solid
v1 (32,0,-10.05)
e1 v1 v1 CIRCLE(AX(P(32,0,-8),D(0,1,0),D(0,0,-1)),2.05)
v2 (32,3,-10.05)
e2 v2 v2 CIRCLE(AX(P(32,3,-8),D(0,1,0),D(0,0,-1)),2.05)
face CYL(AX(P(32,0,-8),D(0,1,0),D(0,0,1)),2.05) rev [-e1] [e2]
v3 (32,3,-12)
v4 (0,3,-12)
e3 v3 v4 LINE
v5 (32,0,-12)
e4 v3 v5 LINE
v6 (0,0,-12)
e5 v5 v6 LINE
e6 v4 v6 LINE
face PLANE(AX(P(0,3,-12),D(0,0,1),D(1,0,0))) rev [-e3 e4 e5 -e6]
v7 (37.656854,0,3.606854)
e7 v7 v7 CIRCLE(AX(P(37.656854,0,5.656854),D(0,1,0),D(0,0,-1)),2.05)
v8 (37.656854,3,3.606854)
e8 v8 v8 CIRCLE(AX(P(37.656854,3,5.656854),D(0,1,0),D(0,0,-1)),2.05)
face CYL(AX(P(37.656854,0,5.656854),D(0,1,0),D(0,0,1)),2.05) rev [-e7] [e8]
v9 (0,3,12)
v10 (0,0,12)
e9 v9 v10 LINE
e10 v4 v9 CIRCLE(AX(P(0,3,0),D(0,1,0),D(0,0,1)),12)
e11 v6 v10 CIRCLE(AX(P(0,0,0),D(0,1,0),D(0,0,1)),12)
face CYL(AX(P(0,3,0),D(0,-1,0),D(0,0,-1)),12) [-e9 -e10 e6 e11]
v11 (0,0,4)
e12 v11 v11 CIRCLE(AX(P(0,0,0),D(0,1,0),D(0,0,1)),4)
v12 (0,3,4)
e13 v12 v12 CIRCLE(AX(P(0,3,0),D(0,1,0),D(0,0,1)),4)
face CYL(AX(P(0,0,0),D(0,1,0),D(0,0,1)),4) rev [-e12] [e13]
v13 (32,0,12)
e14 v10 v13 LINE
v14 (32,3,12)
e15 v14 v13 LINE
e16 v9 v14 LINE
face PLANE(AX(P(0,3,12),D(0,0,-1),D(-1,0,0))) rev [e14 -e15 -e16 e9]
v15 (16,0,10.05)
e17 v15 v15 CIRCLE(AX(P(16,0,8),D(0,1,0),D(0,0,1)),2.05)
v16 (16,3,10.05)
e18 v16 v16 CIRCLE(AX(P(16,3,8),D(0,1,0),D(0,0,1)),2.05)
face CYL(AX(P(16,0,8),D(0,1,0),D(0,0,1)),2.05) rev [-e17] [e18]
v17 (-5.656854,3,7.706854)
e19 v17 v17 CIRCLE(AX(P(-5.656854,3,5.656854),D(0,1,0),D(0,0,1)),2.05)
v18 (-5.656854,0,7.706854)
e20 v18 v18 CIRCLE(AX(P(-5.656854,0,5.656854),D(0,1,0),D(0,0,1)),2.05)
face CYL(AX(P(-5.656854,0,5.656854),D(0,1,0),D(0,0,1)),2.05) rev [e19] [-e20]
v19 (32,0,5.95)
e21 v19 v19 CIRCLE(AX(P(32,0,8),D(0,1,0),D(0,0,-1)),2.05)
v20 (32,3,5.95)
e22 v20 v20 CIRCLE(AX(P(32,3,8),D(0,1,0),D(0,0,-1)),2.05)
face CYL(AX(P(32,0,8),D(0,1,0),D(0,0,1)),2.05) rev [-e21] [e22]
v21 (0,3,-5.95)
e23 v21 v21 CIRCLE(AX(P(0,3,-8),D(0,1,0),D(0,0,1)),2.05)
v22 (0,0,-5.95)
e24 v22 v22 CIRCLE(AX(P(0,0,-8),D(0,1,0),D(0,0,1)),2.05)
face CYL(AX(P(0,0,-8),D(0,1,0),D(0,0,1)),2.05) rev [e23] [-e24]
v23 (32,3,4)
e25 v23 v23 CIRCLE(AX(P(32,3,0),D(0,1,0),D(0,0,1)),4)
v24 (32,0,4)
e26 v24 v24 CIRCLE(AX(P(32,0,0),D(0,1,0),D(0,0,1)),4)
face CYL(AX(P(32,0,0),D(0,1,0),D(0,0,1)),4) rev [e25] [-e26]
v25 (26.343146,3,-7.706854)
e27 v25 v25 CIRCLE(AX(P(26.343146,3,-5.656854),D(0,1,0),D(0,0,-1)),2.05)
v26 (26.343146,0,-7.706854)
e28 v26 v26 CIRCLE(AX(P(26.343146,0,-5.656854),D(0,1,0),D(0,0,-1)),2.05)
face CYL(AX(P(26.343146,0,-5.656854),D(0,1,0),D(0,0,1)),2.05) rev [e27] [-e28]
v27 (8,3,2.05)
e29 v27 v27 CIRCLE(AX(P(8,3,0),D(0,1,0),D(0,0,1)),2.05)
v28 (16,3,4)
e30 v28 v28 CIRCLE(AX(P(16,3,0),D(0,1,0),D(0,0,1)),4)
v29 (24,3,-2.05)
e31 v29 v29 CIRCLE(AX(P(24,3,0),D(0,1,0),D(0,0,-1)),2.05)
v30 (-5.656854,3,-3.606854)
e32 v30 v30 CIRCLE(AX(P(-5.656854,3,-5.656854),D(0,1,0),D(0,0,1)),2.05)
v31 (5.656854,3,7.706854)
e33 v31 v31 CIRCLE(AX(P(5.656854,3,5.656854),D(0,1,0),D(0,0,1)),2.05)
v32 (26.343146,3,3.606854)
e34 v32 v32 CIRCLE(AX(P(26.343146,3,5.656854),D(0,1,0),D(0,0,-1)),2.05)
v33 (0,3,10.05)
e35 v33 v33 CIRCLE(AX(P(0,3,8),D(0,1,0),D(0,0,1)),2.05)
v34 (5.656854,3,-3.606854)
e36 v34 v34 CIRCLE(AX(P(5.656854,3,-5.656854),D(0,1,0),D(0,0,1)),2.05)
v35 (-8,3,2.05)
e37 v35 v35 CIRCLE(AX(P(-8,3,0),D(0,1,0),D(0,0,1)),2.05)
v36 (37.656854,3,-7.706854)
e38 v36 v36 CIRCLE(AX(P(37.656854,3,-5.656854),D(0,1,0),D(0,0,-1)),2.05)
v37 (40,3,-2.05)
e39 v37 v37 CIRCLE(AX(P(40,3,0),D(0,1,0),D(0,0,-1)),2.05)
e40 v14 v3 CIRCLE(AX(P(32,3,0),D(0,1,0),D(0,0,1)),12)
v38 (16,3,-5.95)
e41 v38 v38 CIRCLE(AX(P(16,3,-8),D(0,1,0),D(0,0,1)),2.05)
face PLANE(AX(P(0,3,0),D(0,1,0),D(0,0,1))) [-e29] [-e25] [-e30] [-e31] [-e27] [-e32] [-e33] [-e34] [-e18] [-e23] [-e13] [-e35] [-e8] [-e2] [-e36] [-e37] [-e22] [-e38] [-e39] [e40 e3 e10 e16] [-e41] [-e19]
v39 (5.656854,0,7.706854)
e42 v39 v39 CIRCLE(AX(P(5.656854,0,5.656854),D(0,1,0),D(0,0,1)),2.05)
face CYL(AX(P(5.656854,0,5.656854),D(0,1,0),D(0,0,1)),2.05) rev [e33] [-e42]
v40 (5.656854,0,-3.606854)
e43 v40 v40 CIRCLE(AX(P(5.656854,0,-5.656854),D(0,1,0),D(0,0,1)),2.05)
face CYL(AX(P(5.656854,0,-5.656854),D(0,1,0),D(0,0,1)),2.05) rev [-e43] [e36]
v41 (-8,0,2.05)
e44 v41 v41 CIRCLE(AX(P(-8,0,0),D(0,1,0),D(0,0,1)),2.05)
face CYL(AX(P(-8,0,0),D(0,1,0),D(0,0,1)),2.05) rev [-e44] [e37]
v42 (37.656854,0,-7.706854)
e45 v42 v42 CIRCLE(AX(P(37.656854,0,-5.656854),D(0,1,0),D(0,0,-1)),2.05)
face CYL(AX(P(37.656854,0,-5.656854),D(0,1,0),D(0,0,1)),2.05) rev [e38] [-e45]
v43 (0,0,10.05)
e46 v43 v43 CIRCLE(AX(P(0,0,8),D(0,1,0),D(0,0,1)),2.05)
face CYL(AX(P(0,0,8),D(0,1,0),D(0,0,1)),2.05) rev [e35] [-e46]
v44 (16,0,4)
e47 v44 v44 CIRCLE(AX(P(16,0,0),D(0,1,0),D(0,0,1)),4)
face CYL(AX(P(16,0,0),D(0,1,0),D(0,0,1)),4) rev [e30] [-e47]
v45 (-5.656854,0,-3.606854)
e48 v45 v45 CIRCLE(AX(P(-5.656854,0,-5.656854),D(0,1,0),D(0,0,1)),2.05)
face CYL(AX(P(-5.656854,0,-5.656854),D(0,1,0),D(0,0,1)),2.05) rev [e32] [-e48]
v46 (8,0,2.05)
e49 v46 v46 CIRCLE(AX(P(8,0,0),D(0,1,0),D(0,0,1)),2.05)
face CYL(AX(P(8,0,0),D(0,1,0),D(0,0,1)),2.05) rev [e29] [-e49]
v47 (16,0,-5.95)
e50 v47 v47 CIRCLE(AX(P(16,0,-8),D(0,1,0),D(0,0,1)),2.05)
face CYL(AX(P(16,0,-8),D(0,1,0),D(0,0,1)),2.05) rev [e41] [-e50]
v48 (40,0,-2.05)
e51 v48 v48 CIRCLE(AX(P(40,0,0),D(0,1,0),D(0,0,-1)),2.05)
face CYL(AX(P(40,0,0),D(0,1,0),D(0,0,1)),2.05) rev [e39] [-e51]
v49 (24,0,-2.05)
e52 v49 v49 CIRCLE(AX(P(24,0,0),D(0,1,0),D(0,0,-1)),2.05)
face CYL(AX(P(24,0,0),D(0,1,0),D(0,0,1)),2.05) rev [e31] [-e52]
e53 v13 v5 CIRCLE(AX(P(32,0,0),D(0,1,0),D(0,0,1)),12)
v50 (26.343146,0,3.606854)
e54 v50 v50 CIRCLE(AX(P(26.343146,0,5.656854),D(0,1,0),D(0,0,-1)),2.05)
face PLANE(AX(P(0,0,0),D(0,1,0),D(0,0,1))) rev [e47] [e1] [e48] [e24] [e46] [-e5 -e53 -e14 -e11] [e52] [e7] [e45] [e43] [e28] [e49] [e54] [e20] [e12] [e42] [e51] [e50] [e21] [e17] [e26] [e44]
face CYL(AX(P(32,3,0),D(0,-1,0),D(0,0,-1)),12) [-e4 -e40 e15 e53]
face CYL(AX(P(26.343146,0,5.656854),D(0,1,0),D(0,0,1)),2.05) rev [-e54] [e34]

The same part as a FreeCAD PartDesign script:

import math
import FreeCAD as App
import Part
import Sketcher

doc = App.newDocument("Part")
body = doc.addObject("PartDesign::Body", "Body")

# Sketch on XZ plane
sketch1 = body.newObject("Sketcher::SketchObject", "Sketch")
sketch1.AttachmentSupport = (doc.getObject("XZ_Plane"), [""])
sketch1.MapMode = "FlatFace"
sketch1.addGeometry([
    Part.LineSegment(App.Vector(32, -12, 0), App.Vector(0, -12, 0)),
    Part.ArcOfCircle(Part.Circle(App.Vector(0, 0, 0), App.Vector(0, 0, 1), 12), math.radians(90), math.radians(270)),
    Part.LineSegment(App.Vector(0, 12, 0), App.Vector(32, 12, 0)),
    Part.ArcOfCircle(Part.Circle(App.Vector(32, 0, 0), App.Vector(0, 0, 1), 12), math.radians(-90), math.radians(90)),
], False)
sketch1.addConstraint([
    Sketcher.Constraint("Tangent", 0, 2, 1, 2),
    Sketcher.Constraint("Tangent", 1, 1, 2, 1),
    Sketcher.Constraint("Tangent", 2, 2, 3, 2),
    Sketcher.Constraint("Tangent", 3, 1, 0, 1),
    Sketcher.Constraint("Horizontal", 0),
    Sketcher.Constraint("Horizontal", 2),
    Sketcher.Constraint("Coincident", 1, 3, -1, 1),
    Sketcher.Constraint("Radius", 1, 12.0),
    Sketcher.Constraint("DistanceX", 0, 2, 0, 1, 32.0),
])
pad1 = body.newObject("PartDesign::Pad", "Pad")
pad1.Profile = sketch1
pad1.Length = 3
pad1.Reversed = True

# Sketch on XZ plane
sketch2 = body.newObject("Sketcher::SketchObject", "Sketch001")
sketch2.AttachmentSupport = (doc.getObject("XZ_Plane"), [""])
sketch2.MapMode = "FlatFace"
sketch2.AttachmentOffset = App.Placement(App.Vector(0, 0, -3), App.Rotation())
sketch2.addGeometry([
    Part.Circle(App.Vector(0, 0, 0), App.Vector(0, 0, 1), 4),
    Part.Circle(App.Vector(16, 0, 0), App.Vector(0, 0, 1), 4),
    Part.Circle(App.Vector(32, 0, 0), App.Vector(0, 0, 1), 4),
], False)
sketch2.addConstraint([
    Sketcher.Constraint("Coincident", 0, 3, -1, 1),
    Sketcher.Constraint("Equal", 0, 1),
    Sketcher.Constraint("Equal", 1, 2),
    Sketcher.Constraint("PointOnObject", 1, 3, -1),
    Sketcher.Constraint("PointOnObject", 2, 3, -1),
    Sketcher.Constraint("Diameter", 0, 8.0),
    Sketcher.Constraint("DistanceX", -1, 1, 1, 3, 16.0),
    Sketcher.Constraint("DistanceX", -1, 1, 2, 3, 32.0),
])
pocket1 = body.newObject("PartDesign::Pocket", "Pocket")
pocket1.Profile = sketch2
pocket1.Type = "ThroughAll"
pocket1.Reversed = True

# Sketch on XZ plane
sketch3 = body.newObject("Sketcher::SketchObject", "Sketch002")
sketch3.AttachmentSupport = (doc.getObject("XZ_Plane"), [""])
sketch3.MapMode = "FlatFace"
sketch3.AttachmentOffset = App.Placement(App.Vector(0, 0, -3), App.Rotation())
sketch3.addGeometry([
    Part.Circle(App.Vector(0, -8, 0), App.Vector(0, 0, 1), 2),  # 0
    Part.Circle(App.Vector(5.7, -5.7, 0), App.Vector(0, 0, 1), 2),  # 1
    Part.Circle(App.Vector(8, 0, 0), App.Vector(0, 0, 1), 2),  # 2
    Part.Circle(App.Vector(5.7, 5.7, 0), App.Vector(0, 0, 1), 2),  # 3
    Part.Circle(App.Vector(0, 8, 0), App.Vector(0, 0, 1), 2),  # 4
    Part.Circle(App.Vector(-5.7, 5.7, 0), App.Vector(0, 0, 1), 2),  # 5
    Part.Circle(App.Vector(-8, 0, 0), App.Vector(0, 0, 1), 2),  # 6
    Part.Circle(App.Vector(-5.7, -5.7, 0), App.Vector(0, 0, 1), 2),  # 7
    Part.Circle(App.Vector(26.3, 5.7, 0), App.Vector(0, 0, 1), 2),  # 8
    Part.Circle(App.Vector(32, 8, 0), App.Vector(0, 0, 1), 2),  # 9
    Part.Circle(App.Vector(37.7, 5.7, 0), App.Vector(0, 0, 1), 2),  # 10
    Part.Circle(App.Vector(40, 0, 0), App.Vector(0, 0, 1), 2),  # 11
    Part.Circle(App.Vector(37.7, -5.7, 0), App.Vector(0, 0, 1), 2),  # 12
    Part.Circle(App.Vector(32, -8, 0), App.Vector(0, 0, 1), 2),  # 13
    Part.Circle(App.Vector(26.3, -5.7, 0), App.Vector(0, 0, 1), 2),  # 14
    Part.Circle(App.Vector(24, 0, 0), App.Vector(0, 0, 1), 2),  # 15
    Part.Circle(App.Vector(16, -8, 0), App.Vector(0, 0, 1), 2),  # 16
    Part.Circle(App.Vector(16, 8, 0), App.Vector(0, 0, 1), 2),  # 17
], False)
sketch3.addConstraint([
    Sketcher.Constraint("Equal", 0, 1),
    Sketcher.Constraint("Equal", 1, 2),
    Sketcher.Constraint("Equal", 2, 3),
    Sketcher.Constraint("Equal", 3, 4),
    Sketcher.Constraint("Equal", 4, 5),
    Sketcher.Constraint("Equal", 5, 6),
    Sketcher.Constraint("Equal", 6, 7),
    Sketcher.Constraint("Equal", 7, 8),
    Sketcher.Constraint("Equal", 8, 9),
    Sketcher.Constraint("Equal", 9, 10),
    Sketcher.Constraint("Equal", 10, 11),
    Sketcher.Constraint("Equal", 11, 12),
    Sketcher.Constraint("Equal", 12, 13),
    Sketcher.Constraint("Equal", 13, 14),
    Sketcher.Constraint("Equal", 14, 15),
    Sketcher.Constraint("Equal", 15, 16),
    Sketcher.Constraint("Equal", 16, 17),
    Sketcher.Constraint("Symmetric", 0, 3, 4, 3, -1, 1),
    Sketcher.Constraint("Symmetric", 1, 3, 5, 3, -1, 1),
    Sketcher.Constraint("Symmetric", 2, 3, 6, 3, -1, 1),
    Sketcher.Constraint("Symmetric", 3, 3, 7, 3, -1, 1),
    Sketcher.Constraint("Symmetric", 3, 3, 5, 3, -2),
    Sketcher.Constraint("Symmetric", 10, 3, 12, 3, -1),
    Sketcher.Constraint("Symmetric", 9, 3, 13, 3, -1),
    Sketcher.Constraint("Symmetric", 8, 3, 14, 3, -1),
    Sketcher.Constraint("Symmetric", 16, 3, 17, 3, -1),
    Sketcher.Constraint("PointOnObject", 0, 3, -2),
    Sketcher.Constraint("PointOnObject", 2, 3, -1),
    Sketcher.Constraint("PointOnObject", 11, 3, -1),
    Sketcher.Constraint("PointOnObject", 15, 3, -1),
    Sketcher.Constraint("Horizontal", 5, 3, 8, 3),
    Sketcher.Constraint("Horizontal", 4, 3, 9, 3),
    Sketcher.Constraint("Horizontal", 8, 3, 10, 3),
    Sketcher.Constraint("Horizontal", 13, 3, 16, 3),
    Sketcher.Constraint("Diameter", 0, 4.1),
    Sketcher.Constraint("DistanceY", 0, 3, -1, 1, 8.0),
    Sketcher.Constraint("DistanceX", -1, 1, 2, 3, 8.0),
    Sketcher.Constraint("DistanceX", -1, 1, 9, 3, 32.0),
    Sketcher.Constraint("DistanceX", -1, 1, 11, 3, 40.0),
    Sketcher.Constraint("DistanceX", -1, 1, 15, 3, 24.0),
    Sketcher.Constraint("DistanceX", -1, 1, 16, 3, 16.0),
    Sketcher.Constraint("DistanceX", 3, 3, 10, 3, 32.0),
    Sketcher.Constraint("DistanceY", 1, 3, 3, 3, 11.313708),
    Sketcher.Constraint("DistanceX", 5, 3, 3, 3, 11.313708),
    Sketcher.Constraint("DistanceX", 3, 3, 8, 3, 20.686292),
])
pocket2 = body.newObject("PartDesign::Pocket", "Pocket001")
pocket2.Profile = sketch3
pocket2.Type = "ThroughAll"
pocket2.Reversed = True

doc.recompute()
